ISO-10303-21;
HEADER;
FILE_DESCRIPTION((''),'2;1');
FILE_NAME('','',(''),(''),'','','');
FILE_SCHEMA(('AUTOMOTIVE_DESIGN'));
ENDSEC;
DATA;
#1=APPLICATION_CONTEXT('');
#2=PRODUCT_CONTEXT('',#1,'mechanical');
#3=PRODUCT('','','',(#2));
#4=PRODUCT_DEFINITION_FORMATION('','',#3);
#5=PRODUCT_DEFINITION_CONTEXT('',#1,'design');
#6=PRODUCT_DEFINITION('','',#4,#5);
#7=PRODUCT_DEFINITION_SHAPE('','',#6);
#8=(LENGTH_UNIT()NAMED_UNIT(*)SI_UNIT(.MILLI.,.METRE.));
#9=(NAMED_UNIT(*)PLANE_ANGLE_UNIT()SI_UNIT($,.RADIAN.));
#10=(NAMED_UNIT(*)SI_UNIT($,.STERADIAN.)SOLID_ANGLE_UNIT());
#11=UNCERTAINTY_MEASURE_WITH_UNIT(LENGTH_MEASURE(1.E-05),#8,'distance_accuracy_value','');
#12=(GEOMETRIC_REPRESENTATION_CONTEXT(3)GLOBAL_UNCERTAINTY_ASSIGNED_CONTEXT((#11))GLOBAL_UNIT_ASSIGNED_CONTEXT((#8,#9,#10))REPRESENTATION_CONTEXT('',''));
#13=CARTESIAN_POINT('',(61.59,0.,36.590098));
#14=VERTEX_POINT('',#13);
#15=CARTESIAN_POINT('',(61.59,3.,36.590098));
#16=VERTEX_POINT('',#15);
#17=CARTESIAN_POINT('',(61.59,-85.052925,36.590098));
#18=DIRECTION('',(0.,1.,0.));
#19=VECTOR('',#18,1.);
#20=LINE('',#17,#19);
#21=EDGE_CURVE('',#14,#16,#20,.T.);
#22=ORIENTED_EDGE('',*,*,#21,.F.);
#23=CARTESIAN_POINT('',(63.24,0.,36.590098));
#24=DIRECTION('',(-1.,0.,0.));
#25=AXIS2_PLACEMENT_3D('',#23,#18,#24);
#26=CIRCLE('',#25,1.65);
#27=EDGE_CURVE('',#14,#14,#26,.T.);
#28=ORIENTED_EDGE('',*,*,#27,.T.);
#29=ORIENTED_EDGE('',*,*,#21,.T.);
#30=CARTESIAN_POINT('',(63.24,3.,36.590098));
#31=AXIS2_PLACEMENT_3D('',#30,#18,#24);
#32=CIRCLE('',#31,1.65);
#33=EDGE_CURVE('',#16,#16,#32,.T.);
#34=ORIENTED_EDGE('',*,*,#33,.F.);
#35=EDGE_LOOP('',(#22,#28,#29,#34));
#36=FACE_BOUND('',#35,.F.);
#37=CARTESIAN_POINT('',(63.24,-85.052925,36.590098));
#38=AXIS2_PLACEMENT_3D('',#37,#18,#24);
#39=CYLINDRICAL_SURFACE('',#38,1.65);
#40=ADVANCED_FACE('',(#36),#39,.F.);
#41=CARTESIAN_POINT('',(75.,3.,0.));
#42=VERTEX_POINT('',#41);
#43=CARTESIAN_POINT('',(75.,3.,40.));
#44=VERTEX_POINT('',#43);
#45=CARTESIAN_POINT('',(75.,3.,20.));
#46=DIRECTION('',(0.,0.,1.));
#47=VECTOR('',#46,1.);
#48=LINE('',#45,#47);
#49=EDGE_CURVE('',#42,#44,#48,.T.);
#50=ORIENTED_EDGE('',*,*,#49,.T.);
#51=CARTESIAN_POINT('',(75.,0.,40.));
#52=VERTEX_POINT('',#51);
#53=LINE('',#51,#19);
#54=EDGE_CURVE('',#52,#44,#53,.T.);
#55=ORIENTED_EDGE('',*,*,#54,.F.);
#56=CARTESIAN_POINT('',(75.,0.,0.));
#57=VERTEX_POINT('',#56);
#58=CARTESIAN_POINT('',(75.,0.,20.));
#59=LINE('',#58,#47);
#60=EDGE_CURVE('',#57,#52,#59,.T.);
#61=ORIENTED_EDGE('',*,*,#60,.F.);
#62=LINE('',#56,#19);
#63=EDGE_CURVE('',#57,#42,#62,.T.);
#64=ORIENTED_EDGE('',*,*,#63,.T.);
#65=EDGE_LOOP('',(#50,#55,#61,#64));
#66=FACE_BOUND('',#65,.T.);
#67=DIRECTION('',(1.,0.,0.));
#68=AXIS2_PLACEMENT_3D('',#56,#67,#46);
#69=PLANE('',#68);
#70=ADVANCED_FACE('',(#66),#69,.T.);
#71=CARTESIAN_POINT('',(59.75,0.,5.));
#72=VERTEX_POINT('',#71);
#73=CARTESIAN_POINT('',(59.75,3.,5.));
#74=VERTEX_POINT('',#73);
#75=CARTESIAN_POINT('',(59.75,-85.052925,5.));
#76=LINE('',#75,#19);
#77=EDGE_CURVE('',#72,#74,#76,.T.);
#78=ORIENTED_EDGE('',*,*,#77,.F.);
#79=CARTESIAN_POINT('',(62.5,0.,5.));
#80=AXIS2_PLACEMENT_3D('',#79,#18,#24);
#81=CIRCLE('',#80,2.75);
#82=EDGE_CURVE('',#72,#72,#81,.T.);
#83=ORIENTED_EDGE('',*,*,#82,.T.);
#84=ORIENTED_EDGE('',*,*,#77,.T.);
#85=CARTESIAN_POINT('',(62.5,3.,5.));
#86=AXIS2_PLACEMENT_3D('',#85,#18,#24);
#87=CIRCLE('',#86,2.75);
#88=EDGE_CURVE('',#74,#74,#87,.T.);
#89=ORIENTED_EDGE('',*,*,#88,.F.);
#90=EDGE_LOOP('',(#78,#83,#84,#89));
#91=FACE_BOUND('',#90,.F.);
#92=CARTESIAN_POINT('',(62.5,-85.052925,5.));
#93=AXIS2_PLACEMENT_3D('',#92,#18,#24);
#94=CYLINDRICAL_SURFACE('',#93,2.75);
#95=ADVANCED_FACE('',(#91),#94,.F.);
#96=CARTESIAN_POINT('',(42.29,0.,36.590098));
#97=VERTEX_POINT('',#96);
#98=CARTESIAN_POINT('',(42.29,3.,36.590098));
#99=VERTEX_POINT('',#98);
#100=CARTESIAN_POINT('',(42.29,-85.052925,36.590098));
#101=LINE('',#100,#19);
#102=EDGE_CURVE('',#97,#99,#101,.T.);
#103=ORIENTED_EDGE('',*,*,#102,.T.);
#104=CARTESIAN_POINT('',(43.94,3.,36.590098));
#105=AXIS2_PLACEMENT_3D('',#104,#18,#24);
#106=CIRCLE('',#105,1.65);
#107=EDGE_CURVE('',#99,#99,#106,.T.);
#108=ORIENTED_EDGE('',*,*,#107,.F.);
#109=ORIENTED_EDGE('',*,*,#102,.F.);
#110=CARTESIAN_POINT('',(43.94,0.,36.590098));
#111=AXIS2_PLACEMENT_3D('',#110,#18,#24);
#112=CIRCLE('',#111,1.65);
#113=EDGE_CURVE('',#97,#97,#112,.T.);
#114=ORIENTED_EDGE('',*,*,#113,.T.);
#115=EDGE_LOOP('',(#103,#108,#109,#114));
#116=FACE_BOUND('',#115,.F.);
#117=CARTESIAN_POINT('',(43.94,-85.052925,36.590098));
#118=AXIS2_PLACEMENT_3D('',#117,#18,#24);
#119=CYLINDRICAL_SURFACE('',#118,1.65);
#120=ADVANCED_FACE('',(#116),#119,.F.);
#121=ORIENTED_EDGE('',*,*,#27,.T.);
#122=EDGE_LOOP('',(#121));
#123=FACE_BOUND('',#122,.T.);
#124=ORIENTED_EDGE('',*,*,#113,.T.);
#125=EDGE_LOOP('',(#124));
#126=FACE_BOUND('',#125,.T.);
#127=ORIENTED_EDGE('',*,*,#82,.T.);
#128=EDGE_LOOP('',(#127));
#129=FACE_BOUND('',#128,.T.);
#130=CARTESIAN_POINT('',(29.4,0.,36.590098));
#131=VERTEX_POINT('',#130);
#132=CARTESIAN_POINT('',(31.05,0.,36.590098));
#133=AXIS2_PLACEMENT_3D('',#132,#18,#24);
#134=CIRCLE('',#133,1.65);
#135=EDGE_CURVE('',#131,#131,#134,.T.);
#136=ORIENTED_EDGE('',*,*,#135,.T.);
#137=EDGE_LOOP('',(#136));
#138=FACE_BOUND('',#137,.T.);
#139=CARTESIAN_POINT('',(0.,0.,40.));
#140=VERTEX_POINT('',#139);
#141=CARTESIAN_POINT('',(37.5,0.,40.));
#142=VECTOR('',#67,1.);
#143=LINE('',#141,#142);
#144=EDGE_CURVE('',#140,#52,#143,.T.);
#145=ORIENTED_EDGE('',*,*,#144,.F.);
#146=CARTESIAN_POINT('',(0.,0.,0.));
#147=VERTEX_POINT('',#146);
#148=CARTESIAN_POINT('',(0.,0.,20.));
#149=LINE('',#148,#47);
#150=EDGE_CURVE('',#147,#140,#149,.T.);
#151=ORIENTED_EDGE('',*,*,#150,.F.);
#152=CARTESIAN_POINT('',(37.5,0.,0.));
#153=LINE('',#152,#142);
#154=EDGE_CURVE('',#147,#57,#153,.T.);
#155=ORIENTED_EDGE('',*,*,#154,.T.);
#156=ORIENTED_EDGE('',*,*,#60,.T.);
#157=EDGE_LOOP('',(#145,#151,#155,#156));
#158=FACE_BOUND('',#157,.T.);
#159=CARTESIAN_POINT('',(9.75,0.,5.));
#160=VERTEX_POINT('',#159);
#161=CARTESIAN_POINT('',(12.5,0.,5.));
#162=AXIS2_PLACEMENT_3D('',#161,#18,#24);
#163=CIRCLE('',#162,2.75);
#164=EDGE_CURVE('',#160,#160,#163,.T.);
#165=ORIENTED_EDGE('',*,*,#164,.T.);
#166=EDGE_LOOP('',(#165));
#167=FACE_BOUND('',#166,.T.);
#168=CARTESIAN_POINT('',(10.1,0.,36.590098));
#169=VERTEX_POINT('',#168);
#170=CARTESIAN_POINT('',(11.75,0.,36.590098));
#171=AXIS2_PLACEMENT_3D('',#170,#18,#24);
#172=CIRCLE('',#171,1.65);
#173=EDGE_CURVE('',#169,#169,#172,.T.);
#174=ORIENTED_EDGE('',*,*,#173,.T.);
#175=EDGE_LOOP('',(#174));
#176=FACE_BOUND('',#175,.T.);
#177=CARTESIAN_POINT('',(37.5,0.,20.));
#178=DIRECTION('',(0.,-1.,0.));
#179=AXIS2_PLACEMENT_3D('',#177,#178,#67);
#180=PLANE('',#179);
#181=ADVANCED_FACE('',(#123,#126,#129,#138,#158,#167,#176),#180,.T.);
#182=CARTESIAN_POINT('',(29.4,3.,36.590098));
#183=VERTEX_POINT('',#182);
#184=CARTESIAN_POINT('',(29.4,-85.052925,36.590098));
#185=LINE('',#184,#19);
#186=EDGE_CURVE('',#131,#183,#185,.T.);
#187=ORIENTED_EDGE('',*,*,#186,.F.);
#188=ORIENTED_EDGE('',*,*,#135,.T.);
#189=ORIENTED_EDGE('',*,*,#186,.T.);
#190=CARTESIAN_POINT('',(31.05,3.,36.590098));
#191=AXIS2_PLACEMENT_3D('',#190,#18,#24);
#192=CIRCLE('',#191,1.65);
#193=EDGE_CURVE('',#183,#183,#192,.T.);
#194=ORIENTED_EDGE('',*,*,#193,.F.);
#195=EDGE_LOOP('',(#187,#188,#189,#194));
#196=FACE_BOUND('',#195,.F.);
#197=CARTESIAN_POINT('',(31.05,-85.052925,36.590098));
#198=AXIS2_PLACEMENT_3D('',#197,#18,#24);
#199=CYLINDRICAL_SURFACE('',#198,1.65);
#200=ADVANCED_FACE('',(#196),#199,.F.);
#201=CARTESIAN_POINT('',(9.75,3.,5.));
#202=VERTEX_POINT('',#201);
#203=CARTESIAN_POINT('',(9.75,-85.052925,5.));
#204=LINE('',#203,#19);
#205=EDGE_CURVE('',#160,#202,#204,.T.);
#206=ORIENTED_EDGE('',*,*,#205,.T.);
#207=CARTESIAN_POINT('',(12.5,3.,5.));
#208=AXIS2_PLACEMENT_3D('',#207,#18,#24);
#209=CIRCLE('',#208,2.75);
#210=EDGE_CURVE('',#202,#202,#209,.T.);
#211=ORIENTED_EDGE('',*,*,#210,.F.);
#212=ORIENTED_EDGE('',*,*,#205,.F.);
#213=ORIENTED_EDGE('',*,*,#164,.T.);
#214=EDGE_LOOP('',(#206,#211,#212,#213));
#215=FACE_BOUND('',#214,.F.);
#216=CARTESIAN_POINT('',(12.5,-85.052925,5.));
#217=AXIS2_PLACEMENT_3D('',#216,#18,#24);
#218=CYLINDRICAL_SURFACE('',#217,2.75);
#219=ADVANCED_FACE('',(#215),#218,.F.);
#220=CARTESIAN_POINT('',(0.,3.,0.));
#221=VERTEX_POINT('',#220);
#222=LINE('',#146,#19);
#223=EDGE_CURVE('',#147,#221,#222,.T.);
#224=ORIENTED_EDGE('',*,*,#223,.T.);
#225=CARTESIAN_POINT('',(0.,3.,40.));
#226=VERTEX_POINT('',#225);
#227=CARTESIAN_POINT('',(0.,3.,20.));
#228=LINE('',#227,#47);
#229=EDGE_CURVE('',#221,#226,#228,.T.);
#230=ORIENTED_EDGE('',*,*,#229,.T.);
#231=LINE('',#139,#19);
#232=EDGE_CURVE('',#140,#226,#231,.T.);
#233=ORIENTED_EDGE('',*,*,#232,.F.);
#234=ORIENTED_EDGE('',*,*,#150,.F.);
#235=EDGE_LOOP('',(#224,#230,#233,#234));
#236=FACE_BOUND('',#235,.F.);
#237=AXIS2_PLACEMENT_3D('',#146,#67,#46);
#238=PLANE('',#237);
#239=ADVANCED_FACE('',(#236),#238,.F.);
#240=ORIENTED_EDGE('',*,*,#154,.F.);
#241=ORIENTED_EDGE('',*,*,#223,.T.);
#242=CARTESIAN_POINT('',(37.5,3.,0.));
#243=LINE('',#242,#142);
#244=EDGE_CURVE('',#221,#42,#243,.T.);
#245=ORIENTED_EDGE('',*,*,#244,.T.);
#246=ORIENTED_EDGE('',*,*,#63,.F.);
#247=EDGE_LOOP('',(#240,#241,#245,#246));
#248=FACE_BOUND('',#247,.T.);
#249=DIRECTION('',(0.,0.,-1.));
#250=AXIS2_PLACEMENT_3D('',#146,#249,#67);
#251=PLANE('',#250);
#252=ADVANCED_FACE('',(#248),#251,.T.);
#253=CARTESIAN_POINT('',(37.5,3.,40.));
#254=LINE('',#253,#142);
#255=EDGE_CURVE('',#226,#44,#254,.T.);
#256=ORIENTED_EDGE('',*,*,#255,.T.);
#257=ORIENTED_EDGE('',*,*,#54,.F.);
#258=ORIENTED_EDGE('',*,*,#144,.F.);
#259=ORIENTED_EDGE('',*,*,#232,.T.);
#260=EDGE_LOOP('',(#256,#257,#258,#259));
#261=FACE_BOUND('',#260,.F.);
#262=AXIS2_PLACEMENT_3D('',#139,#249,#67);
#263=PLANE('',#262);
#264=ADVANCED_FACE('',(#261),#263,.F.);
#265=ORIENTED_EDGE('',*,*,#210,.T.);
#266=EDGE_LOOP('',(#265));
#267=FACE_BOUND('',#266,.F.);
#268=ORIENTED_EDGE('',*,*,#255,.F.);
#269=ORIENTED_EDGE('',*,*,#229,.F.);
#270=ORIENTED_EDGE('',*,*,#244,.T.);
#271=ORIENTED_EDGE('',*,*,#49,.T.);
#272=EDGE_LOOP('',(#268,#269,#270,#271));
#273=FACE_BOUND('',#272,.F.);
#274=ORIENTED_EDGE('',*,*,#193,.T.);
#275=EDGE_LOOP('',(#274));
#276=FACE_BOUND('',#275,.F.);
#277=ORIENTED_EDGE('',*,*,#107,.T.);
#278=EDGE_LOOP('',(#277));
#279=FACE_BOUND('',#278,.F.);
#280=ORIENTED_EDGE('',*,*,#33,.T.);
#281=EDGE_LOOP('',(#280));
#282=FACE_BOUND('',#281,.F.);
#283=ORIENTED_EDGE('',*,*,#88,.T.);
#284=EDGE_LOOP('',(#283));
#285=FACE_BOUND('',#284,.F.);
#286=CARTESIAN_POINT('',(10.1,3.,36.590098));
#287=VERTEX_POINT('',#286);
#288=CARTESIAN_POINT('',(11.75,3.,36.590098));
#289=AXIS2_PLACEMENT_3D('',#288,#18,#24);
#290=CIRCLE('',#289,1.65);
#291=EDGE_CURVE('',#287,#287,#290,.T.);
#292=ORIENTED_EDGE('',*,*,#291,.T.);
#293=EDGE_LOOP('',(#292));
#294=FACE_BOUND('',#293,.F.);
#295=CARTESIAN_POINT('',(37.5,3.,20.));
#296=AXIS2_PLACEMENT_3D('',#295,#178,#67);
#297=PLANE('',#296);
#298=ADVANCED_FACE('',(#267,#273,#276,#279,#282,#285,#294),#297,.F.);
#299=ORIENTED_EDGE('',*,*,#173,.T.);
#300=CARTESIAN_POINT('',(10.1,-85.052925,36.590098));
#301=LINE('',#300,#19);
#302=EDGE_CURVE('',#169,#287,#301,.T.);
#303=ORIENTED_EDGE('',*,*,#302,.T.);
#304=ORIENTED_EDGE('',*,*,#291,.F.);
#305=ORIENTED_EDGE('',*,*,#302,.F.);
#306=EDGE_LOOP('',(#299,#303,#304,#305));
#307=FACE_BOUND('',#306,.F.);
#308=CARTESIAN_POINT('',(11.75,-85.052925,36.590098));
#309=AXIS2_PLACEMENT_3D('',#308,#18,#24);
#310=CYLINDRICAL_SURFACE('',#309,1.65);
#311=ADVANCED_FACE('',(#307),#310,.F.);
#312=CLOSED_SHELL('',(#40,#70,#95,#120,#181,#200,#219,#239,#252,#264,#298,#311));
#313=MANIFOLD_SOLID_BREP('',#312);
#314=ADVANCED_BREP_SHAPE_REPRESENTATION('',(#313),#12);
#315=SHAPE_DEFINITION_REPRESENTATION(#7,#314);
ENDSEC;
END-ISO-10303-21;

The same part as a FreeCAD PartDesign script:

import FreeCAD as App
import Part
import Sketcher
Q = App.Units.Quantity

doc = App.newDocument("Part")
body = doc.addObject("PartDesign::Body", "Body")

sketch1 = doc.addObject("Sketcher::SketchObject", "Sketch")
body.addObject(sketch1)
sketch1.AttachmentSupport = (doc.XZ_Plane, [""])
sketch1.MapMode = "FlatFace"
sketch1.addGeometry([
    Part.LineSegment(App.Vector(0, 40, 0), App.Vector(0, 0, 0)),
    Part.LineSegment(App.Vector(0, 0, 0), App.Vector(75, 0, 0)),
    Part.LineSegment(App.Vector(75, 0, 0), App.Vector(75, 40, 0)),
    Part.LineSegment(App.Vector(75, 40, 0), App.Vector(0, 40, 0)),
], False)
sketch1.addConstraint([
    Sketcher.Constraint("Coincident", 0, 2, 1, 1),
    Sketcher.Constraint("Coincident", 1, 2, 2, 1),
    Sketcher.Constraint("Coincident", 2, 2, 3, 1),
    Sketcher.Constraint("Coincident", 3, 2, 0, 1),
    Sketcher.Constraint("Vertical", 0),
    Sketcher.Constraint("Horizontal", 1),
    Sketcher.Constraint("Vertical", 2),
    Sketcher.Constraint("Horizontal", 3),
    Sketcher.Constraint("Coincident", 0, 2, -1, 1),
    Sketcher.Constraint("DistanceX", 1, 1, 1, 2, Q("75 mm")),
    Sketcher.Constraint("DistanceY", 0, 2, 0, 1, Q("40 mm")),
])
pad1 = doc.addObject("PartDesign::Pad", "Pad")
body.addObject(pad1)
pad1.Profile = sketch1
pad1.Length = 3
pad1.Reversed = True

sketch2 = doc.addObject("Sketcher::SketchObject", "Sketch001")
body.addObject(sketch2)
sketch2.AttachmentSupport = (doc.XZ_Plane, [""])
sketch2.MapMode = "FlatFace"
sketch2.addGeometry([
    Part.Circle(App.Vector(12.5, 5, 0), App.Vector(0, 0, 1), 2.8),
    Part.Circle(App.Vector(62.5, 5, 0), App.Vector(0, 0, 1), 2.8),
], False)
sketch2.addConstraint([
    Sketcher.Constraint("Equal", 0, 1),
    Sketcher.Constraint("Horizontal", 0, 3, 1, 3),
    Sketcher.Constraint("Diameter", 0, Q("5.5 mm")),
    Sketcher.Constraint("DistanceY", -1, 1, 0, 3, Q("5 mm")),
    Sketcher.Constraint("DistanceX", 0, 3, 1, 3, Q("50 mm")),
    Sketcher.Constraint("DistanceX", -1, 1, 0, 3, Q("12.5 mm")),
])
doc.recompute()
hole = doc.addObject("PartDesign::Hole", "Hole")
body.addObject(hole)
hole.Profile = sketch2
hole.ThreadType = "None"
hole.Diameter = 5.5
hole.DepthType = "ThroughAll"

sketch3 = doc.addObject("Sketcher::SketchObject", "Sketch002")
body.addObject(sketch3)
sketch3.AttachmentSupport = (doc.XZ_Plane, [""])
sketch3.MapMode = "FlatFace"
sketch3.addGeometry([
    Part.Circle(App.Vector(11.8, 36.6, 0), App.Vector(0, 0, 1), 1.6),
    Part.Circle(App.Vector(31.1, 36.6, 0), App.Vector(0, 0, 1), 1.6),
    Part.Circle(App.Vector(43.9, 36.6, 0), App.Vector(0, 0, 1), 1.6),
    Part.Circle(App.Vector(63.2, 36.6, 0), App.Vector(0, 0, 1), 1.6),
], False)
sketch3.addConstraint([
    Sketcher.Constraint("Equal", 0, 1),
    Sketcher.Constraint("Equal", 1, 2),
    Sketcher.Constraint("Equal", 2, 3),
    Sketcher.Constraint("Horizontal", 0, 3, 1, 3),
    Sketcher.Constraint("Horizontal", 1, 3, 2, 3),
    Sketcher.Constraint("Horizontal", 2, 3, 3, 3),
    Sketcher.Constraint("Diameter", 0, Q("3.3 mm")),
    Sketcher.Constraint("DistanceX", 0, 3, 1, 3, Q("19.3 mm")),
    Sketcher.Constraint("DistanceX", 2, 3, 3, 3, Q("19.3 mm")),
    Sketcher.Constraint("DistanceX", -1, 1, 0, 3, Q("11.75 mm")),
    Sketcher.Constraint("DistanceX", -1, 1, 2, 3, Q("43.94 mm")),
    Sketcher.Constraint("DistanceY", -1, 1, 0, 3, Q("36.590098 mm")),
])
doc.recompute()
hole2 = doc.addObject("PartDesign::Hole", "Hole001")
body.addObject(hole2)
hole2.Profile = sketch3
hole2.ThreadType = "None"
hole2.Diameter = 3.3
hole2.DepthType = "ThroughAll"

doc.recompute()
